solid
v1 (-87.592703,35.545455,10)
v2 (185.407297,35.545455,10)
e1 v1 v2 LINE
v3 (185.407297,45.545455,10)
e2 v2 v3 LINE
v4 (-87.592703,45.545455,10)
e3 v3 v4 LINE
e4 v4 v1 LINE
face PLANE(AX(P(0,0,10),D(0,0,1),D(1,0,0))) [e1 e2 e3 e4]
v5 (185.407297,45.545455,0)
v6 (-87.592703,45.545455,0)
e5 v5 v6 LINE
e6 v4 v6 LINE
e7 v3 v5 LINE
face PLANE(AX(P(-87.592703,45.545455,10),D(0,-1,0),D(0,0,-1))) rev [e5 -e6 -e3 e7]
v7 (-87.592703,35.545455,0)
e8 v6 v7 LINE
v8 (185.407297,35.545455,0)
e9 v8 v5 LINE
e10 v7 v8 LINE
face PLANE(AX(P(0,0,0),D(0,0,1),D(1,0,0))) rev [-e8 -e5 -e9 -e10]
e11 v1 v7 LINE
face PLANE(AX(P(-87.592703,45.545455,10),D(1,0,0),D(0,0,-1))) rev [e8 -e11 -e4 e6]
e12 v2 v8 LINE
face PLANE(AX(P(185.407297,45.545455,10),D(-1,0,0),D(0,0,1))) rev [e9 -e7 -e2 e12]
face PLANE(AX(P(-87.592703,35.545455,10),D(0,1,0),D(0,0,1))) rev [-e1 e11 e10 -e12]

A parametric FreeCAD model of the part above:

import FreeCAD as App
import Part
import Sketcher

V = App.Vector
Q = App.Units.Quantity


def add_polygon(sketch, points):
    """Adds a closed chain of lines whose ends are joined by coincident constraints."""
    first, n = sketch.GeometryCount, len(points)
    for a, b in zip(points, points[1:] + points[:1]):
        sketch.addGeometry(Part.LineSegment(App.Vector(*a, 0), App.Vector(*b, 0)), False)
    for i in range(n):
        sketch.addConstraint(Sketcher.Constraint("Coincident", first + i, 2, first + (i + 1) % n, 1))

doc = App.newDocument("Part")
body = doc.addObject("PartDesign::Body", "Body")

sketch1 = body.newObject("Sketcher::SketchObject", "Sketch")
sketch1.AttachmentSupport = (doc.getObject("XY_Plane"), [""])
sketch1.MapMode = "FlatFace"
add_polygon(sketch1, [(-88, 46), (-88, 36), (185, 36), (185, 46)])
sketch1.addConstraint([
    Sketcher.Constraint("Vertical", 0),
    Sketcher.Constraint("Horizontal", 1),
    Sketcher.Constraint("Vertical", 2),
    Sketcher.Constraint("Horizontal", 3),
    Sketcher.Constraint("DistanceX", 1, 1, 1, 2, Q("273 mm")),
    Sketcher.Constraint("DistanceY", 0, 2, 0, 1, Q("10 mm")),
    Sketcher.Constraint("DistanceX", 0, 2, -1, 1, Q("87.592703 mm")),
    Sketcher.Constraint("DistanceY", -1, 1, 0, 2, Q("35.545455 mm")),
])
pad1 = body.newObject("PartDesign::Pad", "Pad")
pad1.Profile = sketch1
pad1.Length = 10

doc.recompute()
